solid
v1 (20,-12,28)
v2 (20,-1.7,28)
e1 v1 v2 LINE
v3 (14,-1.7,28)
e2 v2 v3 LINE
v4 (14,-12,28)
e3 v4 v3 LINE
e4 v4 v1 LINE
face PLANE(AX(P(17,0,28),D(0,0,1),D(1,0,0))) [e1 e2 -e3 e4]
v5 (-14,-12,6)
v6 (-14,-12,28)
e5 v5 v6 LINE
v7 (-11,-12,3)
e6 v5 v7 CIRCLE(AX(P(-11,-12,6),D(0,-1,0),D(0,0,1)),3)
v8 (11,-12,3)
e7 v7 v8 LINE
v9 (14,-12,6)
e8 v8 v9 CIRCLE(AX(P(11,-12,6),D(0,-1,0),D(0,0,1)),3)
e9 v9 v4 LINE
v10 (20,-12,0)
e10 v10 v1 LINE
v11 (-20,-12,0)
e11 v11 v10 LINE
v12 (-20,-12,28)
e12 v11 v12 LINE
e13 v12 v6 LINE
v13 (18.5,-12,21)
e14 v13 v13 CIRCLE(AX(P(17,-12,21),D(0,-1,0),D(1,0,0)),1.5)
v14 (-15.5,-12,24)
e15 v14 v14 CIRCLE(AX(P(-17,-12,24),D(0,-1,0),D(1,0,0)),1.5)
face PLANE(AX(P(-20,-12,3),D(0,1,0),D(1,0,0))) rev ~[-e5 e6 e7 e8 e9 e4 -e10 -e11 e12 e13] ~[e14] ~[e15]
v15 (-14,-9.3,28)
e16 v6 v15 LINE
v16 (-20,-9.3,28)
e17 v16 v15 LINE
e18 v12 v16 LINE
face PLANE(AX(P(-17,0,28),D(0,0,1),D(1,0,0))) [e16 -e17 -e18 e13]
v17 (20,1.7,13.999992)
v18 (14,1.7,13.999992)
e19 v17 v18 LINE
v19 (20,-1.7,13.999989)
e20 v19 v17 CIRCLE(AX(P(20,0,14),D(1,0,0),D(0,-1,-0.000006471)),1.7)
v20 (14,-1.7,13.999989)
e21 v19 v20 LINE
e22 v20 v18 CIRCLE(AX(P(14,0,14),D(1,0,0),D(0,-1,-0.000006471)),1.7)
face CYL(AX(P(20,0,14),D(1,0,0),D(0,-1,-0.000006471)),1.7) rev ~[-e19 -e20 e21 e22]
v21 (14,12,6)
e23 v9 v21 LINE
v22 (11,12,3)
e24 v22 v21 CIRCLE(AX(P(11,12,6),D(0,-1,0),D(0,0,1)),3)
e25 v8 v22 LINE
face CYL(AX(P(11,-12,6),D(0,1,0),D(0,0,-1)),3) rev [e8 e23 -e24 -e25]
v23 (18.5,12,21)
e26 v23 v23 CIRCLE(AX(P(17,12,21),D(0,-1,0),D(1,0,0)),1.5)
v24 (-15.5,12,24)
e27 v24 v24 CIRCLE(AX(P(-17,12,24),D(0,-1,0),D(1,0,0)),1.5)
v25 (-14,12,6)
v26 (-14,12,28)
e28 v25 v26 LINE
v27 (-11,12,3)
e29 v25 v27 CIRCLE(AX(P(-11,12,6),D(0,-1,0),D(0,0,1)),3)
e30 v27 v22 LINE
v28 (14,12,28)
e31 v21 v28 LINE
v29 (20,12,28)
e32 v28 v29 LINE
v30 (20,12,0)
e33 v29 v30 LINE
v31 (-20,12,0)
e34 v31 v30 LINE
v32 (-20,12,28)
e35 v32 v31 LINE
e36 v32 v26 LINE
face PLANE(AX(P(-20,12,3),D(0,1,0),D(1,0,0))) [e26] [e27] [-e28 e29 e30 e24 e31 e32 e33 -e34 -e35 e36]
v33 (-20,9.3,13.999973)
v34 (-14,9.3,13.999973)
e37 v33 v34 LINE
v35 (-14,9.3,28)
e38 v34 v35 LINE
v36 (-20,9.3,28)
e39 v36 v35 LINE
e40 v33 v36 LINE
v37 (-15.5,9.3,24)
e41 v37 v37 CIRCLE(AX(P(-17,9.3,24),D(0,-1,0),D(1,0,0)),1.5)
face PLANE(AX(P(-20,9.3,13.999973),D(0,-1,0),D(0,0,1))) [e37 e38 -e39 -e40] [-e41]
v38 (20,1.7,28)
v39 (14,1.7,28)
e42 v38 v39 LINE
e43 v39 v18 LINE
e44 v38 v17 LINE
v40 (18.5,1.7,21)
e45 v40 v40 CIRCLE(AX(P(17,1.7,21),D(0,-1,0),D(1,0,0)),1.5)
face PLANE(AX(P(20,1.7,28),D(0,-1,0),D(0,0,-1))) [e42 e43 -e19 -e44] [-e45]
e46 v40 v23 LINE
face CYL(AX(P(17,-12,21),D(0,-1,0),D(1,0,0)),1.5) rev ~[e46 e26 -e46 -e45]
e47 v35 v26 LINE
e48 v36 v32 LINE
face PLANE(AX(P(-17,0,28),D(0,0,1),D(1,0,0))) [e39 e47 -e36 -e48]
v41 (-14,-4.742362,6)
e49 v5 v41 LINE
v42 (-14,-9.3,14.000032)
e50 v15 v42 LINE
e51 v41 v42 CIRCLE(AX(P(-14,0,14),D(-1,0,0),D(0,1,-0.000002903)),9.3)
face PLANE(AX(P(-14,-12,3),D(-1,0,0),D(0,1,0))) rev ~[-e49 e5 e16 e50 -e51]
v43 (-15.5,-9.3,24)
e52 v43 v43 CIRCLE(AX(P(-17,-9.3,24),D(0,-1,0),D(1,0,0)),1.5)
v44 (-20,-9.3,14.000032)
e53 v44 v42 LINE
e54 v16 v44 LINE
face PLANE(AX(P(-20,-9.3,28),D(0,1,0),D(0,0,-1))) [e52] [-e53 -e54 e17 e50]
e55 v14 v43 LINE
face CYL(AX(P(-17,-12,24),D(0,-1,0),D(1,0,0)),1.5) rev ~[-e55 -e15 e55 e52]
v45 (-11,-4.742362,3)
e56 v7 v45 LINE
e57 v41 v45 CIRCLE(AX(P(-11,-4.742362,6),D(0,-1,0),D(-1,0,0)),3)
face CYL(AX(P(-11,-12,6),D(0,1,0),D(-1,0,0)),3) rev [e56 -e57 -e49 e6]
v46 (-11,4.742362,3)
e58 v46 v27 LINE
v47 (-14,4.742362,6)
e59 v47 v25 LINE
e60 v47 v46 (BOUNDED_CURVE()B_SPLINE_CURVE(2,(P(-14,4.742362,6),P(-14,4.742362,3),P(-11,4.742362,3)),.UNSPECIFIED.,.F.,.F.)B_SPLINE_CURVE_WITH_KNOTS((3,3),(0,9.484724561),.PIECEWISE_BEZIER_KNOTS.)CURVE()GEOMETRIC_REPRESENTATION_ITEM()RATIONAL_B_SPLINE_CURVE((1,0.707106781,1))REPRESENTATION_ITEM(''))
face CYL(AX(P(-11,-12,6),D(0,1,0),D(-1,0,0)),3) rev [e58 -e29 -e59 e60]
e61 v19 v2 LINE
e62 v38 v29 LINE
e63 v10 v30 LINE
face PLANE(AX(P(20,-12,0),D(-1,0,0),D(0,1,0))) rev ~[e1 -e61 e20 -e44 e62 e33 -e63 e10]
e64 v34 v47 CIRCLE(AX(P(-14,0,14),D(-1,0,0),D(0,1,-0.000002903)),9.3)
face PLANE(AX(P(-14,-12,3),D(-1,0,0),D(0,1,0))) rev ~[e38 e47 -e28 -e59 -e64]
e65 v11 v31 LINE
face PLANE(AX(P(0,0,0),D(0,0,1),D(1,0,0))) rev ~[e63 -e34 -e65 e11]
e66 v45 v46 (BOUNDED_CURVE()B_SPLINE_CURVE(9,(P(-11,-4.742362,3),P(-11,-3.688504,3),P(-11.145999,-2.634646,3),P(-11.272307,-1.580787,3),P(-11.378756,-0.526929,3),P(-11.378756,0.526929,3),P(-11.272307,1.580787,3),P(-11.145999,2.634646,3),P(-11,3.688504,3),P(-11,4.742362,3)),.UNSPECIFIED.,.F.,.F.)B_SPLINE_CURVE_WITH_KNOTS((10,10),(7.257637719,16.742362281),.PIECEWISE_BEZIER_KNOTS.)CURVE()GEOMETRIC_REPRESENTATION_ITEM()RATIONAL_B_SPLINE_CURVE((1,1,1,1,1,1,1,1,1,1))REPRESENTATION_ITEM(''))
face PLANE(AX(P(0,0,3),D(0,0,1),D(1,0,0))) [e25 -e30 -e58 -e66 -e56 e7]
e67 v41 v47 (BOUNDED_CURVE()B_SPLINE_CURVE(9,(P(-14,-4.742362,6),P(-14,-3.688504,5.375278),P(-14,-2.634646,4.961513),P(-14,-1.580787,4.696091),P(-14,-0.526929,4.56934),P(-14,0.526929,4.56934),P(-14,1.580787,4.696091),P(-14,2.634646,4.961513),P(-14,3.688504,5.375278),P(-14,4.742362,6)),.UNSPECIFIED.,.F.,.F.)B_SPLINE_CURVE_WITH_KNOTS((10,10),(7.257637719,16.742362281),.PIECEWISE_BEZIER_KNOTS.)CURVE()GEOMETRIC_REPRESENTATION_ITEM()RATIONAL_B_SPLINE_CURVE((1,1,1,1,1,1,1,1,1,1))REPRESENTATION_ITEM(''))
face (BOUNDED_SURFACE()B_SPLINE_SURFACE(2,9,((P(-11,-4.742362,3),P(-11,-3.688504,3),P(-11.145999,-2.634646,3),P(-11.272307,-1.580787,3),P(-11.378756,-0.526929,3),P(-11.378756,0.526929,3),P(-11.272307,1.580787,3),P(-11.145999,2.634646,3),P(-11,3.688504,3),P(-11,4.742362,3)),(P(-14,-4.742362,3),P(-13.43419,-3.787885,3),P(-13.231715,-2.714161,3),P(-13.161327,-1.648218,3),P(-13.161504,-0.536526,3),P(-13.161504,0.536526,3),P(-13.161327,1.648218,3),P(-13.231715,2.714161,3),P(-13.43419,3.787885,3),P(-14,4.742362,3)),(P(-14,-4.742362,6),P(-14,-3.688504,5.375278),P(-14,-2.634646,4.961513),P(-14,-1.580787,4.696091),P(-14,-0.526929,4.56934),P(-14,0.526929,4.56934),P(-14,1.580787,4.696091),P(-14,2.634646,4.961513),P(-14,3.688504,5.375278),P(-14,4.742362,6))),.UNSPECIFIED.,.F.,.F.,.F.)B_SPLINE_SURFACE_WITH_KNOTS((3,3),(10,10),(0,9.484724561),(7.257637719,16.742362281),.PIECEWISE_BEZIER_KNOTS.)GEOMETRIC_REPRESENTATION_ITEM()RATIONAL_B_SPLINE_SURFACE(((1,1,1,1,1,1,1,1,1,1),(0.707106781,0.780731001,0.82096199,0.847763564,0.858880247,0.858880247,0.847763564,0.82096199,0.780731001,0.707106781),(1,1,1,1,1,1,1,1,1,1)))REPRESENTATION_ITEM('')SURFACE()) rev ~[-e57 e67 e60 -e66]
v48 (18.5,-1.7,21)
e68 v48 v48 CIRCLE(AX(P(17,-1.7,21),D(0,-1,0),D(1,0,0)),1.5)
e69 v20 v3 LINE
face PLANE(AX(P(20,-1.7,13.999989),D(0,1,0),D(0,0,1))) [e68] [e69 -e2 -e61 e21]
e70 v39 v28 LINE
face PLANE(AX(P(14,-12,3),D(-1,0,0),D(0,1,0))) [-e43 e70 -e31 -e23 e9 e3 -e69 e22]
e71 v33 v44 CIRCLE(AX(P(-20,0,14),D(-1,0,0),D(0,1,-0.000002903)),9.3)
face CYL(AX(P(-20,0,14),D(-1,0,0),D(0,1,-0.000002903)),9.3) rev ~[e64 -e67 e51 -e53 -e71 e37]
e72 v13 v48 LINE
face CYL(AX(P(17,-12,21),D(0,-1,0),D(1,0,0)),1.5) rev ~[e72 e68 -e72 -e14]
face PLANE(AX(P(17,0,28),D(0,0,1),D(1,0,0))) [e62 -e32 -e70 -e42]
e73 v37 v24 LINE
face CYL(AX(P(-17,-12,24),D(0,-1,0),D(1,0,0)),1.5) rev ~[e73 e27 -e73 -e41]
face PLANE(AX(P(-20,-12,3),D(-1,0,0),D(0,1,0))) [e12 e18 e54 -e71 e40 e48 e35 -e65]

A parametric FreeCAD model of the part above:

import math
import FreeCAD as App
import Part
import Sketcher
Q = App.Units.Quantity


def edges_at(feature, points):
    """Names of the edges that pass closest to the given points."""
    edges = feature.Shape.Edges
    near = lambda p: min(range(len(edges)), key=lambda i: edges[i].distToShape(Part.Vertex(*p))[0])
    return sorted({f"Edge{near(p) + 1}" for p in points})

doc = App.newDocument("Part")
params = doc.addObject("Spreadsheet::Sheet", "Params")
for row, (alias, value) in enumerate([
    ("sketch1_width", "40 mm"),
    ("sketch1_height", "24 mm"),
    ("pad1_length", "3 mm"),
    ("sketch2_width", "6 mm"),
    ("sketch2_height", "24 mm"),
    ("pad2_length", "25 mm"),
    ("sketch3_radius", "1.7 mm"),
    ("pocket1_length", "6 mm"),
    ("sketch4_radius", "9.3 mm"),
    ("pocket2_length", "6 mm"),
    ("sketch5_diameter", "3 mm"),
    ("fillet_radius", "3 mm"),
], start=1):
    params.set(f"A{row}", alias)
    params.set(f"B{row}", "=" + value)
    params.setAlias(f"B{row}", alias)

body = doc.addObject("PartDesign::Body", "Body")

# Sketch on XY plane
sketch1 = doc.addObject("Sketcher::SketchObject", "Sketch")
body.addObject(sketch1)
sketch1.AttachmentSupport = (doc.XY_Plane, [""])
sketch1.MapMode = "FlatFace"
sketch1.addGeometry(Part.LineSegment(App.Vector(-20, 12, 0), App.Vector(-20, -12, 0)), False)
sketch1.addGeometry(Part.LineSegment(App.Vector(-20, -12, 0), App.Vector(20, -12, 0)), False)
sketch1.addGeometry(Part.LineSegment(App.Vector(20, -12, 0), App.Vector(20, 12, 0)), False)
sketch1.addGeometry(Part.LineSegment(App.Vector(20, 12, 0), App.Vector(-20, 12, 0)), False)
sketch1.addConstraint(Sketcher.Constraint("Coincident", 0, 2, 1, 1))
sketch1.addConstraint(Sketcher.Constraint("Coincident", 1, 2, 2, 1))
sketch1.addConstraint(Sketcher.Constraint("Coincident", 2, 2, 3, 1))
sketch1.addConstraint(Sketcher.Constraint("Coincident", 3, 2, 0, 1))
sketch1.addConstraint(Sketcher.Constraint("Vertical", 0))
sketch1.addConstraint(Sketcher.Constraint("Horizontal", 1))
sketch1.addConstraint(Sketcher.Constraint("Vertical", 2))
sketch1.addConstraint(Sketcher.Constraint("Horizontal", 3))
sketch1.addConstraint(Sketcher.Constraint("Symmetric", 0, 2, 2, 2, -1, 1))
sketch1.addConstraint(Sketcher.Constraint("DistanceX", 1, 1, 1, 2, Q("40 mm")))
sketch1.addConstraint(Sketcher.Constraint("DistanceY", 0, 2, 0, 1, Q("24 mm")))
sketch1.setExpression("Constraints[9]", "Params.sketch1_width")
sketch1.setExpression("Constraints[10]", "Params.sketch1_height")
pad1 = doc.addObject("PartDesign::Pad", "Pad")
body.addObject(pad1)
pad1.Profile = sketch1
pad1.setExpression("Length", "Params.pad1_length")

# Sketch on XY plane
sketch2 = doc.addObject("Sketcher::SketchObject", "Sketch001")
body.addObject(sketch2)
sketch2.AttachmentSupport = (doc.XY_Plane, [""])
sketch2.MapMode = "FlatFace"
sketch2.AttachmentOffset = App.Placement(App.Vector(0, 0, 3), App.Rotation())
sketch2.addGeometry(Part.LineSegment(App.Vector(-20, 12, 0), App.Vector(-20, -12, 0)), False)
sketch2.addGeometry(Part.LineSegment(App.Vector(-20, -12, 0), App.Vector(-14, -12, 0)), False)
sketch2.addGeometry(Part.LineSegment(App.Vector(-14, -12, 0), App.Vector(-14, 12, 0)), False)
sketch2.addGeometry(Part.LineSegment(App.Vector(-14, 12, 0), App.Vector(-20, 12, 0)), False)
sketch2.addGeometry(Part.LineSegment(App.Vector(14, 12, 0), App.Vector(14, -12, 0)), False)
sketch2.addGeometry(Part.LineSegment(App.Vector(14, -12, 0), App.Vector(20, -12, 0)), False)
sketch2.addGeometry(Part.LineSegment(App.Vector(20, -12, 0), App.Vector(20, 12, 0)), False)
sketch2.addGeometry(Part.LineSegment(App.Vector(20, 12, 0), App.Vector(14, 12, 0)), False)
sketch2.addConstraint(Sketcher.Constraint("Coincident", 0, 2, 1, 1))
sketch2.addConstraint(Sketcher.Constraint("Coincident", 1, 2, 2, 1))
sketch2.addConstraint(Sketcher.Constraint("Coincident", 2, 2, 3, 1))
sketch2.addConstraint(Sketcher.Constraint("Coincident", 3, 2, 0, 1))
sketch2.addConstraint(Sketcher.Constraint("Coincident", 4, 2, 5, 1))
sketch2.addConstraint(Sketcher.Constraint("Coincident", 5, 2, 6, 1))
sketch2.addConstraint(Sketcher.Constraint("Coincident", 6, 2, 7, 1))
sketch2.addConstraint(Sketcher.Constraint("Coincident", 7, 2, 4, 1))
sketch2.addConstraint(Sketcher.Constraint("Vertical", 0))
sketch2.addConstraint(Sketcher.Constraint("Horizontal", 1))
sketch2.addConstraint(Sketcher.Constraint("Vertical", 2))
sketch2.addConstraint(Sketcher.Constraint("Horizontal", 3))
sketch2.addConstraint(Sketcher.Constraint("Vertical", 4))
sketch2.addConstraint(Sketcher.Constraint("Horizontal", 5))
sketch2.addConstraint(Sketcher.Constraint("Vertical", 6))
sketch2.addConstraint(Sketcher.Constraint("Horizontal", 7))
sketch2.addConstraint(Sketcher.Constraint("Symmetric", 2, 2, 4, 2, -1, 1))
sketch2.addConstraint(Sketcher.Constraint("Symmetric", 0, 2, 6, 2, -1, 1))
sketch2.addConstraint(Sketcher.Constraint("Horizontal", 1, 2, 4, 2))
sketch2.addConstraint(Sketcher.Constraint("DistanceX", 1, 1, 1, 2, Q("6 mm")))
sketch2.addConstraint(Sketcher.Constraint("DistanceY", 0, 2, 0, 1, Q("24 mm")))
sketch2.addConstraint(Sketcher.Constraint("DistanceX", 0, 2, -1, 1, Q("20 mm")))
sketch2.setExpression("Constraints[19]", "Params.sketch2_width")
sketch2.setExpression("Constraints[20]", "Params.sketch2_height")
pad2 = doc.addObject("PartDesign::Pad", "Pad001")
body.addObject(pad2)
pad2.Profile = sketch2
pad2.setExpression("Length", "Params.pad2_length")

# Sketch on YZ plane
sketch3 = doc.addObject("Sketcher::SketchObject", "Sketch002")
body.addObject(sketch3)
sketch3.AttachmentSupport = (doc.YZ_Plane, [""])
sketch3.MapMode = "FlatFace"
sketch3.AttachmentOffset = App.Placement(App.Vector(0, 0, 20), App.Rotation())
sketch3.addGeometry(Part.LineSegment(App.Vector(1.7, 28, 0), App.Vector(-1.7, 28, 0)), False)
sketch3.addGeometry(Part.LineSegment(App.Vector(-1.7, 28, 0), App.Vector(-1.7, 14, 0)), False)
sketch3.addGeometry(Part.ArcOfCircle(Part.Circle(App.Vector(0, 14, 0), App.Vector(0, 0, 1), 1.7), math.radians(-180), math.radians(0)), False)
sketch3.addGeometry(Part.LineSegment(App.Vector(1.7, 14, 0), App.Vector(1.7, 28, 0)), False)
sketch3.addConstraint(Sketcher.Constraint("Coincident", 0, 2, 1, 1))
sketch3.addConstraint(Sketcher.Constraint("Coincident", 1, 2, 2, 1))
sketch3.addConstraint(Sketcher.Constraint("Coincident", 2, 2, 3, 1))
sketch3.addConstraint(Sketcher.Constraint("Coincident", 3, 2, 0, 1))
sketch3.addConstraint(Sketcher.Constraint("Horizontal", 0))
sketch3.addConstraint(Sketcher.Constraint("Vertical", 1))
sketch3.addConstraint(Sketcher.Constraint("Vertical", 3))
sketch3.addConstraint(Sketcher.Constraint("Symmetric", 1, 2, 2, 2, -2))
sketch3.addConstraint(Sketcher.Constraint("Radius", 2, Q("1.7 mm")))
sketch3.addConstraint(Sketcher.Constraint("DistanceY", -1, 1, 2, 3, Q("14 mm")))
sketch3.addConstraint(Sketcher.Constraint("DistanceY", -1, 1, 0, 2, Q("28 mm")))
sketch3.addConstraint(Sketcher.Constraint("DistanceY", 1, 2, 1, 1, Q("14.000011 mm")))
sketch3.setExpression("Constraints[8]", "Params.sketch3_radius")
pocket1 = doc.addObject("PartDesign::Pocket", "Pocket")
body.addObject(pocket1)
pocket1.Profile = sketch3
pocket1.setExpression("Length", "Params.pocket1_length")

# Sketch on YZ plane
sketch4 = doc.addObject("Sketcher::SketchObject", "Sketch003")
body.addObject(sketch4)
sketch4.AttachmentSupport = (doc.YZ_Plane, [""])
sketch4.MapMode = "FlatFace"
sketch4.AttachmentOffset = App.Placement(App.Vector(0, 0, -20), App.Rotation())
sketch4.addGeometry(Part.LineSegment(App.Vector(-9, 28, 0), App.Vector(9, 28, 0)), False)
sketch4.addGeometry(Part.LineSegment(App.Vector(9, 28, 0), App.Vector(9, 14, 0)), False)
sketch4.addGeometry(Part.ArcOfCircle(Part.Circle(App.Vector(0, 14, 0), App.Vector(0, 0, 1), 9), math.radians(180), math.radians(360)), False)
sketch4.addGeometry(Part.LineSegment(App.Vector(-9, 14, 0), App.Vector(-9, 28, 0)), False)
sketch4.addConstraint(Sketcher.Constraint("Coincident", 0, 2, 1, 1))
sketch4.addConstraint(Sketcher.Constraint("Coincident", 1, 2, 2, 2))
sketch4.addConstraint(Sketcher.Constraint("Coincident", 2, 1, 3, 1))
sketch4.addConstraint(Sketcher.Constraint("Coincident", 3, 2, 0, 1))
sketch4.addConstraint(Sketcher.Constraint("Horizontal", 0))
sketch4.addConstraint(Sketcher.Constraint("Vertical", 1))
sketch4.addConstraint(Sketcher.Constraint("Vertical", 3))
sketch4.addConstraint(Sketcher.Constraint("PointOnObject", 2, 3, -2))
sketch4.addConstraint(Sketcher.Constraint("Radius", 2, Q("9.3 mm")))
sketch4.addConstraint(Sketcher.Constraint("DistanceY", -1, 1, 2, 3, Q("14 mm")))
sketch4.addConstraint(Sketcher.Constraint("DistanceY", -1, 1, 0, 2, Q("28 mm")))
sketch4.addConstraint(Sketcher.Constraint("DistanceY", 3, 1, 3, 2, Q("13.999968 mm")))
sketch4.addConstraint(Sketcher.Constraint("DistanceY", 1, 2, 1, 1, Q("14.000027 mm")))
sketch4.setExpression("Constraints[8]", "Params.sketch4_radius")
pocket2 = doc.addObject("PartDesign::Pocket", "Pocket001")
body.addObject(pocket2)
pocket2.Profile = sketch4
pocket2.setExpression("Length", "Params.pocket2_length")
pocket2.Reversed = True

# Sketch on XZ plane
sketch5 = doc.addObject("Sketcher::SketchObject", "Sketch004")
body.addObject(sketch5)
sketch5.AttachmentSupport = (doc.XZ_Plane, [""])
sketch5.MapMode = "FlatFace"
sketch5.AttachmentOffset = App.Placement(App.Vector(0, 0, 12), App.Rotation())
sketch5.addGeometry(Part.Circle(App.Vector(17, 21, 0), App.Vector(0, 0, 1), 1.5), False)
sketch5.addGeometry(Part.Circle(App.Vector(-17, 24, 0), App.Vector(0, 0, 1), 1.5), False)
sketch5.addConstraint(Sketcher.Constraint("Equal", 0, 1))
sketch5.addConstraint(Sketcher.Constraint("Diameter", 0, Q("3 mm")))
sketch5.addConstraint(Sketcher.Constraint("DistanceX", -1, 1, 0, 3, Q("17 mm")))
sketch5.addConstraint(Sketcher.Constraint("DistanceY", -1, 1, 0, 3, Q("21 mm")))
sketch5.addConstraint(Sketcher.Constraint("DistanceX", 1, 3, -1, 1, Q("17 mm")))
sketch5.addConstraint(Sketcher.Constraint("DistanceY", -1, 1, 1, 3, Q("24 mm")))
sketch5.setExpression("Constraints[1]", "Params.sketch5_diameter")
pocket3 = doc.addObject("PartDesign::Pocket", "Pocket002")
body.addObject(pocket3)
pocket3.Profile = sketch5
pocket3.Type = "ThroughAll"
doc.recompute()

fillet = doc.addObject("PartDesign::Fillet", "Fillet")
body.addObject(fillet)
fillet.Base = (pocket3, edges_at(pocket3, [(-14, 0, 3), (14, 0, 3)]))
fillet.setExpression("Radius", "Params.fillet_radius")

doc.recompute()
